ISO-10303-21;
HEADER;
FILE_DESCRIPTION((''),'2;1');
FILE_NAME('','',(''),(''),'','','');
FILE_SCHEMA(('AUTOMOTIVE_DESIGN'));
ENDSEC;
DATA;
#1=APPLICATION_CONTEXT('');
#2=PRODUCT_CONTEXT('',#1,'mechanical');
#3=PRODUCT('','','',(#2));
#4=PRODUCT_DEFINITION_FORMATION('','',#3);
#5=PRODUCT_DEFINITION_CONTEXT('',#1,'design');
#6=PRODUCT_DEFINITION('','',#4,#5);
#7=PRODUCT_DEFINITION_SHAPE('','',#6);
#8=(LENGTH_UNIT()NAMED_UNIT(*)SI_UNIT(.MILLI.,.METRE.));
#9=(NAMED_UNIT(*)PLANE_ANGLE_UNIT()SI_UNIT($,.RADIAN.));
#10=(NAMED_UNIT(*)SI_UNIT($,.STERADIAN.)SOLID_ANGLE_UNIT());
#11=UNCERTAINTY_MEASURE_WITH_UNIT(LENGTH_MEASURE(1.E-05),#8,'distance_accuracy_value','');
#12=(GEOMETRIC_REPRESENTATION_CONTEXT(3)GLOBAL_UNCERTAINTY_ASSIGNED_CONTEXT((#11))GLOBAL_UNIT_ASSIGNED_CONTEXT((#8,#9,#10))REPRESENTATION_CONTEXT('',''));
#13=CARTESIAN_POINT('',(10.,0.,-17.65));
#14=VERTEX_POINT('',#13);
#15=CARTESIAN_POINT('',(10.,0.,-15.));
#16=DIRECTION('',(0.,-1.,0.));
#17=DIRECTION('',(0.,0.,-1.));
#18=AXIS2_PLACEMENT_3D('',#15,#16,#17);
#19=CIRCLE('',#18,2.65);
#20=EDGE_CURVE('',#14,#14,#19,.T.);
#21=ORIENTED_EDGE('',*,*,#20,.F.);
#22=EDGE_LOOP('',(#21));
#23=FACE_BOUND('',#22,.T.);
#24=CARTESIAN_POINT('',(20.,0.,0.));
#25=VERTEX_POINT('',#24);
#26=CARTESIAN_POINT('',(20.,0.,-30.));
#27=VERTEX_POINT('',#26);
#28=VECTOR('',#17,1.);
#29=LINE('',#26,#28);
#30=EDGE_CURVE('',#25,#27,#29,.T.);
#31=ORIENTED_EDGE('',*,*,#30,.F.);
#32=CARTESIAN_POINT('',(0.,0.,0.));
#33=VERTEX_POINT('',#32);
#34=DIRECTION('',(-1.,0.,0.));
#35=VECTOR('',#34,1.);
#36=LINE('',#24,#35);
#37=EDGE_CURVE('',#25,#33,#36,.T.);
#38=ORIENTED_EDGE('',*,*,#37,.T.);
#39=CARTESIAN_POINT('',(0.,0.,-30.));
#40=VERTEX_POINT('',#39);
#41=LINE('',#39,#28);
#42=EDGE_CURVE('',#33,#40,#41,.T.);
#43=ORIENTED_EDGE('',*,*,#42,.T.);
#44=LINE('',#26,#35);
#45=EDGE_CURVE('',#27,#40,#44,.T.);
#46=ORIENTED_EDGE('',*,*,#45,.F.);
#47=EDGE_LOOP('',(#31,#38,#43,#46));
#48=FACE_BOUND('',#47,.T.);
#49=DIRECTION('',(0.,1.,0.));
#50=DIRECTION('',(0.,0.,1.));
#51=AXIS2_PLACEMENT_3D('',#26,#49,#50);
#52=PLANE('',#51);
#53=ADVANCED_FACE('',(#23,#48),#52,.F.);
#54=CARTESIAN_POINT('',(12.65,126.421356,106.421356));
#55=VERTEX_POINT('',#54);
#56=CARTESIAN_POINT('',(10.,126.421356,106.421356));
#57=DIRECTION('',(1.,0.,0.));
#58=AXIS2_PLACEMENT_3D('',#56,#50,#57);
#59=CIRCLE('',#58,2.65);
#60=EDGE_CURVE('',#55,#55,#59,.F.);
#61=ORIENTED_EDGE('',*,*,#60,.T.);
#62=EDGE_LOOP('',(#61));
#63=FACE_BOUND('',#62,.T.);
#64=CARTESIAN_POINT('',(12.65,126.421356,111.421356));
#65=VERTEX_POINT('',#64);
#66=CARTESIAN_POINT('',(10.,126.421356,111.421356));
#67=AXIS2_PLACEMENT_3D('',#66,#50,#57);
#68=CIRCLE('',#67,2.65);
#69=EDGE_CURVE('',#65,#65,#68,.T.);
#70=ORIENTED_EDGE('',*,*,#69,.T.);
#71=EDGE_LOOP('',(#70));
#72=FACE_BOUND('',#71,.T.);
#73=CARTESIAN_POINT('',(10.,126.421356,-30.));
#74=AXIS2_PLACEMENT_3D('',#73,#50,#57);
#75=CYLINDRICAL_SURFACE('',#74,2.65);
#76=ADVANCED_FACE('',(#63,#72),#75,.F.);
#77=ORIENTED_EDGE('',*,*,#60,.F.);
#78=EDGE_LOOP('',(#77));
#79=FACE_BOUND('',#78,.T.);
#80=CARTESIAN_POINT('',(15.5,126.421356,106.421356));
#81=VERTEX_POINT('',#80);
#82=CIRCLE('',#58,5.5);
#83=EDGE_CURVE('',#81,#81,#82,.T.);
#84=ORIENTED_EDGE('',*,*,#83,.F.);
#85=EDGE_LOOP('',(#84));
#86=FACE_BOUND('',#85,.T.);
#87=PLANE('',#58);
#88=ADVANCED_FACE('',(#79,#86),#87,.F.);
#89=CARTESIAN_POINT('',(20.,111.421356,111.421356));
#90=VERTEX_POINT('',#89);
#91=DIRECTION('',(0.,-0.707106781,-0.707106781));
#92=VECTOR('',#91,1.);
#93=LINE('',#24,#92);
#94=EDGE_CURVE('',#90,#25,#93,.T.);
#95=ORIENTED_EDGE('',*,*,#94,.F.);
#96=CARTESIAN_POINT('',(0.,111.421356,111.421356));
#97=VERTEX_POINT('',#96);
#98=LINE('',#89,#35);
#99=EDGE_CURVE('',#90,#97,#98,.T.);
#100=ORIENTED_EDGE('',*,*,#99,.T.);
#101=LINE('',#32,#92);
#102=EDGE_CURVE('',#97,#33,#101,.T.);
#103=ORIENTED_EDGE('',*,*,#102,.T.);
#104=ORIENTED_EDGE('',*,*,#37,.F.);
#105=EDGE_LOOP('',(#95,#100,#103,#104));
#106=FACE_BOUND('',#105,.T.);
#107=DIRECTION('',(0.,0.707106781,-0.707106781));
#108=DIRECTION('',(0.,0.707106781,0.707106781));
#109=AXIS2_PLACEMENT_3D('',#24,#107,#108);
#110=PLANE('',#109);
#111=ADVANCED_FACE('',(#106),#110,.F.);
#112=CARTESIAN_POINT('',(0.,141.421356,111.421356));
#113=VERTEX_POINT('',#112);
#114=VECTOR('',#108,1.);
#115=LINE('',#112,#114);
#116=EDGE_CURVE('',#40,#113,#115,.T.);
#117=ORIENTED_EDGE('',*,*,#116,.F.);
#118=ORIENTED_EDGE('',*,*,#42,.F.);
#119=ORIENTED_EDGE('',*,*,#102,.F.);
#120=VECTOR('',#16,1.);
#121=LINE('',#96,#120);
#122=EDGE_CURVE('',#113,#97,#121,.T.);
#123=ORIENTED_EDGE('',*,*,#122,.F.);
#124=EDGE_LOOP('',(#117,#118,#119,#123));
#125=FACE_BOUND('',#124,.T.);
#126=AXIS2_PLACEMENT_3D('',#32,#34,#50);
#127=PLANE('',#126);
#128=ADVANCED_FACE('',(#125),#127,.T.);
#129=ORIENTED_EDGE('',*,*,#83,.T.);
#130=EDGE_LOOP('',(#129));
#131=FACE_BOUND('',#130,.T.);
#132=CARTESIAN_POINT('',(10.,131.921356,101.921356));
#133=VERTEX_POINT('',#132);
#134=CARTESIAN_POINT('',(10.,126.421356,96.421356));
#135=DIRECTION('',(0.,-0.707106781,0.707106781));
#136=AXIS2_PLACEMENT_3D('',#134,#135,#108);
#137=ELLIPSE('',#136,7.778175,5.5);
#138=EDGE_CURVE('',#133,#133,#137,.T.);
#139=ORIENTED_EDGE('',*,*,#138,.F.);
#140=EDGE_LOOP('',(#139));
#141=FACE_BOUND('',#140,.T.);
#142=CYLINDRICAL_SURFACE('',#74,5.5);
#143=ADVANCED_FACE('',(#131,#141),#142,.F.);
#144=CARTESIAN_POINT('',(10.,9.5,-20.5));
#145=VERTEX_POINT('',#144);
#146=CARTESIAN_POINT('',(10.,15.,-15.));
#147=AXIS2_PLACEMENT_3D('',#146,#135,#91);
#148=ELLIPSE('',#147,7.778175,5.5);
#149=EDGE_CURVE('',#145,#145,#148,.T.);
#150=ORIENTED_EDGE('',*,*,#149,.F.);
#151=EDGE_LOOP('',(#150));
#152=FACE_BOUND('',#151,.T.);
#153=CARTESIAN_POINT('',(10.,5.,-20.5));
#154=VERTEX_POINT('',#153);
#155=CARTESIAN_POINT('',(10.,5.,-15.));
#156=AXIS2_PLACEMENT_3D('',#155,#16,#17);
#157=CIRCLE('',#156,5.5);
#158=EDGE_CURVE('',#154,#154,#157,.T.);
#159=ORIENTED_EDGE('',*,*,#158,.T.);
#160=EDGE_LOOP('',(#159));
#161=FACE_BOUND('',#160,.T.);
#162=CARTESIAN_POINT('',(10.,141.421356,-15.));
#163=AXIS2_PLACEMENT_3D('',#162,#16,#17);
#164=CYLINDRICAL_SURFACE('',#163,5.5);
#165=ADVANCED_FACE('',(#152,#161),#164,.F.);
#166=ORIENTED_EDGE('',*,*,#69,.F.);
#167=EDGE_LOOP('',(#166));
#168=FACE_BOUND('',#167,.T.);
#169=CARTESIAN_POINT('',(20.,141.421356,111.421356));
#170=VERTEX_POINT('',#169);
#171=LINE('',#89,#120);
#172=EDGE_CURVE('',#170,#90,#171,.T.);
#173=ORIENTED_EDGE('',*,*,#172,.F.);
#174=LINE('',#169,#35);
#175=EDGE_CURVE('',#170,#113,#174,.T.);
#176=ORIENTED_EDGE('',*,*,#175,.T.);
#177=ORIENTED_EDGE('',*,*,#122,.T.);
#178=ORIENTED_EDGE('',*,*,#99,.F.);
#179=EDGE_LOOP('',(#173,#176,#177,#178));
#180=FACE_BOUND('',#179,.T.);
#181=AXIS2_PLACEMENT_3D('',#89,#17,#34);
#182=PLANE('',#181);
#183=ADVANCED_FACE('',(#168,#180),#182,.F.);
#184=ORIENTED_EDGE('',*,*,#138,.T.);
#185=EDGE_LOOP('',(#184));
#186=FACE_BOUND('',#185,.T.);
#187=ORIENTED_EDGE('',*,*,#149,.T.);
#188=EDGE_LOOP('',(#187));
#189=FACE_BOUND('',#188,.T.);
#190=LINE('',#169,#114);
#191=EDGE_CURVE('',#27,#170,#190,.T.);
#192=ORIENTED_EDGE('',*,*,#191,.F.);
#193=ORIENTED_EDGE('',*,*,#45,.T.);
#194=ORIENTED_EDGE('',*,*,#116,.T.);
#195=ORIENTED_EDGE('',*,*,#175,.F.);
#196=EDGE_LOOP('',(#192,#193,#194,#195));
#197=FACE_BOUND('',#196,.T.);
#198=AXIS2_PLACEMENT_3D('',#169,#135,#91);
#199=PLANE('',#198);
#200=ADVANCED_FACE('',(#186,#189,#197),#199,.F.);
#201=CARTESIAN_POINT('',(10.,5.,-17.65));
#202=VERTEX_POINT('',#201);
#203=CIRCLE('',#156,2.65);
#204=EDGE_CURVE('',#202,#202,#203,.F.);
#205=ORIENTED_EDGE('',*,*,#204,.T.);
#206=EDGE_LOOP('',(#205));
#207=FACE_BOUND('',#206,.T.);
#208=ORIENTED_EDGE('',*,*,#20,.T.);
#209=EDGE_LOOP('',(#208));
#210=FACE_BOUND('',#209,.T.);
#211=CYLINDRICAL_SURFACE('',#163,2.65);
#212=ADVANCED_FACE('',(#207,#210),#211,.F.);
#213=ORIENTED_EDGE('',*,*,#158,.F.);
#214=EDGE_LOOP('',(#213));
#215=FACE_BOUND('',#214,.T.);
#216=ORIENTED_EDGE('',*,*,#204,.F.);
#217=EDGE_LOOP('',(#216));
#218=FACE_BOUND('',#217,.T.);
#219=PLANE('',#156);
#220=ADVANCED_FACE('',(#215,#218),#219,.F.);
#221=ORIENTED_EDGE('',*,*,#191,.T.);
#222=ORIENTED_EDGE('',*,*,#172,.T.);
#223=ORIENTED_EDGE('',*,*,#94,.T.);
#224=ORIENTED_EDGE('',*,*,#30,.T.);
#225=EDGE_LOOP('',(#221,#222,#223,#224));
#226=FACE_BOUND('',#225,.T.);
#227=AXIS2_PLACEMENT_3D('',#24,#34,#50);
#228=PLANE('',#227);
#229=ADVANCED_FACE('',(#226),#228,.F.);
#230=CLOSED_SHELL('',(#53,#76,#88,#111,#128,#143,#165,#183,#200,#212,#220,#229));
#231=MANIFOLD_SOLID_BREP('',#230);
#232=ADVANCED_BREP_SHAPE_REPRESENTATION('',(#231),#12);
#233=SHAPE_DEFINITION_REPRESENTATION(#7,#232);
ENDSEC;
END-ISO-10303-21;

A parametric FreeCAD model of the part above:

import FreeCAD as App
import Part
import Sketcher

V = App.Vector
Q = App.Units.Quantity


def add_polygon(sketch, points):
    """Adds a closed chain of lines whose ends are joined by coincident constraints."""
    first, n = sketch.GeometryCount, len(points)
    for a, b in zip(points, points[1:] + points[:1]):
        sketch.addGeometry(Part.LineSegment(App.Vector(*a, 0), App.Vector(*b, 0)), False)
    for i in range(n):
        sketch.addConstraint(Sketcher.Constraint("Coincident", first + i, 2, first + (i + 1) % n, 1))

doc = App.newDocument("Part")
params = doc.addObject("Spreadsheet::Sheet", "Params")
for row, (alias, value) in enumerate([
    ("sketch1_width", "30 mm"),
    ("sketch1_length", "200 mm"),
    ("pad1_length", "20 mm"),
    ("sketch2_diameter", "5.3 mm"),
    ("sketch3_diameter", "5.3 mm"),
    ("sketch4_diameter", "11 mm"),
    ("sketch5_diameter", "11 mm"),
], start=1):
    params.set(f"A{row}", alias)
    params.set(f"B{row}", "=" + value)
    params.setAlias(f"B{row}", alias)

body = doc.addObject("PartDesign::Body", "Body")

sketch1 = body.newObject("Sketcher::SketchObject", "Sketch")
sketch1.AttachmentSupport = (doc.getObject("YZ_Plane"), [""])
sketch1.MapMode = "FlatFace"
add_polygon(sketch1, [(111.421356, 111.421356), (0, 0), (0, -30), (141.421356, 111.421356)])
sketch1.addConstraint(Sketcher.Constraint("Vertical", 1))
sketch1.addConstraint(Sketcher.Constraint("Horizontal", 3))
sketch1.addConstraint(Sketcher.Constraint("Coincident", 0, 2, -1, 1))
sketch1.addConstraint(Sketcher.Constraint("Parallel", 0, 2))
sketch1.addConstraint(Sketcher.Constraint("Equal", 3, 1))
sketch1.addConstraint(Sketcher.Constraint("DistanceX", 3, 2, 3, 1, Q("30 mm")))
sketch1.addConstraint(Sketcher.Constraint("Distance", 2, Q("200 mm")))
sketch1.setExpression("Constraints[9]", "Params.sketch1_width")
sketch1.setExpression("Constraints[10]", "Params.sketch1_length")
pad1 = body.newObject("PartDesign::Pad", "Pad")
pad1.Profile = sketch1
pad1.setExpression("Length", "Params.pad1_length")

sketch2 = body.newObject("Sketcher::SketchObject", "Sketch001")
sketch2.AttachmentSupport = (doc.getObject("XZ_Plane"), [""])
sketch2.MapMode = "FlatFace"
sketch2.addGeometry(Part.Circle(V(10, -15, 0), V(0, 0, 1), 2.65), False)
sketch2.addConstraint(Sketcher.Constraint("Diameter", 0, Q("5.3 mm")))
sketch2.addConstraint(Sketcher.Constraint("DistanceX", -1, 1, 0, 3, Q("10 mm")))
sketch2.addConstraint(Sketcher.Constraint("DistanceY", 0, 3, -1, 1, Q("15 mm")))
sketch2.setExpression("Constraints[0]", "Params.sketch2_diameter")
pocket1 = body.newObject("PartDesign::Pocket", "Pocket")
pocket1.Profile = sketch2
pocket1.Type = "ThroughAll"

sketch3 = body.newObject("Sketcher::SketchObject", "Sketch002")
sketch3.AttachmentSupport = (doc.getObject("XY_Plane"), [""])
sketch3.MapMode = "FlatFace"
sketch3.AttachmentOffset = App.Placement(V(0, 0, 111.421356), App.Rotation())
sketch3.addGeometry(Part.Circle(V(10, 126.421356, 0), V(0, 0, 1), 2.65), False)
sketch3.addConstraint(Sketcher.Constraint("Diameter", 0, Q("5.3 mm")))
sketch3.addConstraint(Sketcher.Constraint("DistanceX", -1, 1, 0, 3, Q("10 mm")))
sketch3.addConstraint(Sketcher.Constraint("DistanceY", -1, 1, 0, 3, Q("126.421356 mm")))
sketch3.setExpression("Constraints[0]", "Params.sketch3_diameter")
pocket2 = body.newObject("PartDesign::Pocket", "Pocket001")
pocket2.Profile = sketch3
pocket2.Type = "ThroughAll"

sketch4 = body.newObject("Sketcher::SketchObject", "Sketch003")
sketch4.AttachmentSupport = (doc.getObject("XY_Plane"), [""])
sketch4.MapMode = "FlatFace"
sketch4.AttachmentOffset = App.Placement(V(0, 0, 106.421356), App.Rotation())
sketch4.addGeometry(Part.Circle(V(10, 126.421356, 0), V(0, 0, 1), 5.5), False)
sketch4.addConstraint(Sketcher.Constraint("Diameter", 0, Q("11 mm")))
sketch4.addConstraint(Sketcher.Constraint("DistanceX", -1, 1, 0, 3, Q("10 mm")))
sketch4.addConstraint(Sketcher.Constraint("DistanceY", -1, 1, 0, 3, Q("126.421356 mm")))
sketch4.setExpression("Constraints[0]", "Params.sketch4_diameter")
pocket3 = body.newObject("PartDesign::Pocket", "Pocket002")
pocket3.Profile = sketch4
pocket3.Type = "ThroughAll"

sketch5 = body.newObject("Sketcher::SketchObject", "Sketch004")
sketch5.AttachmentSupport = (doc.getObject("XZ_Plane"), [""])
sketch5.MapMode = "FlatFace"
sketch5.AttachmentOffset = App.Placement(V(0, 0, -5), App.Rotation())
sketch5.addGeometry(Part.Circle(V(10, -15, 0), V(0, 0, 1), 5.5), False)
sketch5.addConstraint(Sketcher.Constraint("Diameter", 0, Q("11 mm")))
sketch5.addConstraint(Sketcher.Constraint("DistanceX", -1, 1, 0, 3, Q("10 mm")))
sketch5.addConstraint(Sketcher.Constraint("DistanceY", 0, 3, -1, 1, Q("15 mm")))
sketch5.setExpression("Constraints[0]", "Params.sketch5_diameter")
pocket4 = body.newObject("PartDesign::Pocket", "Pocket003")
pocket4.Profile = sketch5
pocket4.Type = "ThroughAll"

doc.recompute()
